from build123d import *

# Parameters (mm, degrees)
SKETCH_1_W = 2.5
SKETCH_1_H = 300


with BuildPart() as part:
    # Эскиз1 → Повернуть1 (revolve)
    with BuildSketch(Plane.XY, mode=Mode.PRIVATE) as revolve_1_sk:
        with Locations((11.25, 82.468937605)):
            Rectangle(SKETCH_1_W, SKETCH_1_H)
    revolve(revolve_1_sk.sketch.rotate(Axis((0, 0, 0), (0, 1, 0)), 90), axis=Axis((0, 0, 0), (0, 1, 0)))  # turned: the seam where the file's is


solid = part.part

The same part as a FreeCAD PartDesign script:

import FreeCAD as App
import Part
import Sketcher

V = App.Vector

doc = App.newDocument("Part")
params = doc.addObject("Spreadsheet::Sheet", "Params")
for row, (alias, value) in enumerate([
    ("sketch1_height", "300 mm"),
    ("sketch1_width", "2.5 mm"),
    ("revolution_angle", "360 deg"),
], start=1):
    params.set(f"A{row}", alias)
    params.set(f"B{row}", "=" + value)
    params.setAlias(f"B{row}", alias)

body = doc.addObject("PartDesign::Body", "Body")

sketch1 = body.newObject("Sketcher::SketchObject", "Sketch")
sketch1.AttachmentSupport = (doc.getObject("XY_Plane"), [""])
sketch1.MapMode = "FlatFace"
sketch1.addGeometry(Part.LineSegment(V(10, 232.468938, 0), V(10, -67.531062, 0)), False)
sketch1.addGeometry(Part.LineSegment(V(10, -67.531062, 0), V(12.5, -67.531062, 0)), False)
sketch1.addGeometry(Part.LineSegment(V(12.5, -67.531062, 0), V(12.5, 232.468938, 0)), False)
sketch1.addGeometry(Part.LineSegment(V(12.5, 232.468938, 0), V(10, 232.468938, 0)), False)
sketch1.addConstraint(Sketcher.Constraint("Coincident", 0, 2, 1, 1))
sketch1.addConstraint(Sketcher.Constraint("Coincident", 1, 2, 2, 1))
sketch1.addConstraint(Sketcher.Constraint("Coincident", 2, 2, 3, 1))
sketch1.addConstraint(Sketcher.Constraint("Coincident", 3, 2, 0, 1))
sketch1.addConstraint(Sketcher.Constraint("Vertical", 0))
sketch1.addConstraint(Sketcher.Constraint("Horizontal", 1))
sketch1.addConstraint(Sketcher.Constraint("Vertical", 2))
sketch1.addConstraint(Sketcher.Constraint("Horizontal", 3))
sketch1.addConstraint(Sketcher.Constraint("DistanceY", 0, 2, 0, 1, 300.0))
sketch1.addConstraint(Sketcher.Constraint("DistanceX", 1, 1, 1, 2, 2.5))
sketch1.addConstraint(Sketcher.Constraint("DistanceX", -1, 1, 0, 2, 10.0))
sketch1.addConstraint(Sketcher.Constraint("DistanceY", 0, 2, -1, 1, 67.531062))
sketch1.setExpression("Constraints[8]", "Params.sketch1_height")
sketch1.setExpression("Constraints[9]", "Params.sketch1_width")
revolution = body.newObject("PartDesign::Revolution", "Revolution")
revolution.Profile = sketch1
revolution.ReferenceAxis = (sketch1, ["V_Axis"])
revolution.setExpression("Angle", "Params.revolution_angle")

doc.recompute()
